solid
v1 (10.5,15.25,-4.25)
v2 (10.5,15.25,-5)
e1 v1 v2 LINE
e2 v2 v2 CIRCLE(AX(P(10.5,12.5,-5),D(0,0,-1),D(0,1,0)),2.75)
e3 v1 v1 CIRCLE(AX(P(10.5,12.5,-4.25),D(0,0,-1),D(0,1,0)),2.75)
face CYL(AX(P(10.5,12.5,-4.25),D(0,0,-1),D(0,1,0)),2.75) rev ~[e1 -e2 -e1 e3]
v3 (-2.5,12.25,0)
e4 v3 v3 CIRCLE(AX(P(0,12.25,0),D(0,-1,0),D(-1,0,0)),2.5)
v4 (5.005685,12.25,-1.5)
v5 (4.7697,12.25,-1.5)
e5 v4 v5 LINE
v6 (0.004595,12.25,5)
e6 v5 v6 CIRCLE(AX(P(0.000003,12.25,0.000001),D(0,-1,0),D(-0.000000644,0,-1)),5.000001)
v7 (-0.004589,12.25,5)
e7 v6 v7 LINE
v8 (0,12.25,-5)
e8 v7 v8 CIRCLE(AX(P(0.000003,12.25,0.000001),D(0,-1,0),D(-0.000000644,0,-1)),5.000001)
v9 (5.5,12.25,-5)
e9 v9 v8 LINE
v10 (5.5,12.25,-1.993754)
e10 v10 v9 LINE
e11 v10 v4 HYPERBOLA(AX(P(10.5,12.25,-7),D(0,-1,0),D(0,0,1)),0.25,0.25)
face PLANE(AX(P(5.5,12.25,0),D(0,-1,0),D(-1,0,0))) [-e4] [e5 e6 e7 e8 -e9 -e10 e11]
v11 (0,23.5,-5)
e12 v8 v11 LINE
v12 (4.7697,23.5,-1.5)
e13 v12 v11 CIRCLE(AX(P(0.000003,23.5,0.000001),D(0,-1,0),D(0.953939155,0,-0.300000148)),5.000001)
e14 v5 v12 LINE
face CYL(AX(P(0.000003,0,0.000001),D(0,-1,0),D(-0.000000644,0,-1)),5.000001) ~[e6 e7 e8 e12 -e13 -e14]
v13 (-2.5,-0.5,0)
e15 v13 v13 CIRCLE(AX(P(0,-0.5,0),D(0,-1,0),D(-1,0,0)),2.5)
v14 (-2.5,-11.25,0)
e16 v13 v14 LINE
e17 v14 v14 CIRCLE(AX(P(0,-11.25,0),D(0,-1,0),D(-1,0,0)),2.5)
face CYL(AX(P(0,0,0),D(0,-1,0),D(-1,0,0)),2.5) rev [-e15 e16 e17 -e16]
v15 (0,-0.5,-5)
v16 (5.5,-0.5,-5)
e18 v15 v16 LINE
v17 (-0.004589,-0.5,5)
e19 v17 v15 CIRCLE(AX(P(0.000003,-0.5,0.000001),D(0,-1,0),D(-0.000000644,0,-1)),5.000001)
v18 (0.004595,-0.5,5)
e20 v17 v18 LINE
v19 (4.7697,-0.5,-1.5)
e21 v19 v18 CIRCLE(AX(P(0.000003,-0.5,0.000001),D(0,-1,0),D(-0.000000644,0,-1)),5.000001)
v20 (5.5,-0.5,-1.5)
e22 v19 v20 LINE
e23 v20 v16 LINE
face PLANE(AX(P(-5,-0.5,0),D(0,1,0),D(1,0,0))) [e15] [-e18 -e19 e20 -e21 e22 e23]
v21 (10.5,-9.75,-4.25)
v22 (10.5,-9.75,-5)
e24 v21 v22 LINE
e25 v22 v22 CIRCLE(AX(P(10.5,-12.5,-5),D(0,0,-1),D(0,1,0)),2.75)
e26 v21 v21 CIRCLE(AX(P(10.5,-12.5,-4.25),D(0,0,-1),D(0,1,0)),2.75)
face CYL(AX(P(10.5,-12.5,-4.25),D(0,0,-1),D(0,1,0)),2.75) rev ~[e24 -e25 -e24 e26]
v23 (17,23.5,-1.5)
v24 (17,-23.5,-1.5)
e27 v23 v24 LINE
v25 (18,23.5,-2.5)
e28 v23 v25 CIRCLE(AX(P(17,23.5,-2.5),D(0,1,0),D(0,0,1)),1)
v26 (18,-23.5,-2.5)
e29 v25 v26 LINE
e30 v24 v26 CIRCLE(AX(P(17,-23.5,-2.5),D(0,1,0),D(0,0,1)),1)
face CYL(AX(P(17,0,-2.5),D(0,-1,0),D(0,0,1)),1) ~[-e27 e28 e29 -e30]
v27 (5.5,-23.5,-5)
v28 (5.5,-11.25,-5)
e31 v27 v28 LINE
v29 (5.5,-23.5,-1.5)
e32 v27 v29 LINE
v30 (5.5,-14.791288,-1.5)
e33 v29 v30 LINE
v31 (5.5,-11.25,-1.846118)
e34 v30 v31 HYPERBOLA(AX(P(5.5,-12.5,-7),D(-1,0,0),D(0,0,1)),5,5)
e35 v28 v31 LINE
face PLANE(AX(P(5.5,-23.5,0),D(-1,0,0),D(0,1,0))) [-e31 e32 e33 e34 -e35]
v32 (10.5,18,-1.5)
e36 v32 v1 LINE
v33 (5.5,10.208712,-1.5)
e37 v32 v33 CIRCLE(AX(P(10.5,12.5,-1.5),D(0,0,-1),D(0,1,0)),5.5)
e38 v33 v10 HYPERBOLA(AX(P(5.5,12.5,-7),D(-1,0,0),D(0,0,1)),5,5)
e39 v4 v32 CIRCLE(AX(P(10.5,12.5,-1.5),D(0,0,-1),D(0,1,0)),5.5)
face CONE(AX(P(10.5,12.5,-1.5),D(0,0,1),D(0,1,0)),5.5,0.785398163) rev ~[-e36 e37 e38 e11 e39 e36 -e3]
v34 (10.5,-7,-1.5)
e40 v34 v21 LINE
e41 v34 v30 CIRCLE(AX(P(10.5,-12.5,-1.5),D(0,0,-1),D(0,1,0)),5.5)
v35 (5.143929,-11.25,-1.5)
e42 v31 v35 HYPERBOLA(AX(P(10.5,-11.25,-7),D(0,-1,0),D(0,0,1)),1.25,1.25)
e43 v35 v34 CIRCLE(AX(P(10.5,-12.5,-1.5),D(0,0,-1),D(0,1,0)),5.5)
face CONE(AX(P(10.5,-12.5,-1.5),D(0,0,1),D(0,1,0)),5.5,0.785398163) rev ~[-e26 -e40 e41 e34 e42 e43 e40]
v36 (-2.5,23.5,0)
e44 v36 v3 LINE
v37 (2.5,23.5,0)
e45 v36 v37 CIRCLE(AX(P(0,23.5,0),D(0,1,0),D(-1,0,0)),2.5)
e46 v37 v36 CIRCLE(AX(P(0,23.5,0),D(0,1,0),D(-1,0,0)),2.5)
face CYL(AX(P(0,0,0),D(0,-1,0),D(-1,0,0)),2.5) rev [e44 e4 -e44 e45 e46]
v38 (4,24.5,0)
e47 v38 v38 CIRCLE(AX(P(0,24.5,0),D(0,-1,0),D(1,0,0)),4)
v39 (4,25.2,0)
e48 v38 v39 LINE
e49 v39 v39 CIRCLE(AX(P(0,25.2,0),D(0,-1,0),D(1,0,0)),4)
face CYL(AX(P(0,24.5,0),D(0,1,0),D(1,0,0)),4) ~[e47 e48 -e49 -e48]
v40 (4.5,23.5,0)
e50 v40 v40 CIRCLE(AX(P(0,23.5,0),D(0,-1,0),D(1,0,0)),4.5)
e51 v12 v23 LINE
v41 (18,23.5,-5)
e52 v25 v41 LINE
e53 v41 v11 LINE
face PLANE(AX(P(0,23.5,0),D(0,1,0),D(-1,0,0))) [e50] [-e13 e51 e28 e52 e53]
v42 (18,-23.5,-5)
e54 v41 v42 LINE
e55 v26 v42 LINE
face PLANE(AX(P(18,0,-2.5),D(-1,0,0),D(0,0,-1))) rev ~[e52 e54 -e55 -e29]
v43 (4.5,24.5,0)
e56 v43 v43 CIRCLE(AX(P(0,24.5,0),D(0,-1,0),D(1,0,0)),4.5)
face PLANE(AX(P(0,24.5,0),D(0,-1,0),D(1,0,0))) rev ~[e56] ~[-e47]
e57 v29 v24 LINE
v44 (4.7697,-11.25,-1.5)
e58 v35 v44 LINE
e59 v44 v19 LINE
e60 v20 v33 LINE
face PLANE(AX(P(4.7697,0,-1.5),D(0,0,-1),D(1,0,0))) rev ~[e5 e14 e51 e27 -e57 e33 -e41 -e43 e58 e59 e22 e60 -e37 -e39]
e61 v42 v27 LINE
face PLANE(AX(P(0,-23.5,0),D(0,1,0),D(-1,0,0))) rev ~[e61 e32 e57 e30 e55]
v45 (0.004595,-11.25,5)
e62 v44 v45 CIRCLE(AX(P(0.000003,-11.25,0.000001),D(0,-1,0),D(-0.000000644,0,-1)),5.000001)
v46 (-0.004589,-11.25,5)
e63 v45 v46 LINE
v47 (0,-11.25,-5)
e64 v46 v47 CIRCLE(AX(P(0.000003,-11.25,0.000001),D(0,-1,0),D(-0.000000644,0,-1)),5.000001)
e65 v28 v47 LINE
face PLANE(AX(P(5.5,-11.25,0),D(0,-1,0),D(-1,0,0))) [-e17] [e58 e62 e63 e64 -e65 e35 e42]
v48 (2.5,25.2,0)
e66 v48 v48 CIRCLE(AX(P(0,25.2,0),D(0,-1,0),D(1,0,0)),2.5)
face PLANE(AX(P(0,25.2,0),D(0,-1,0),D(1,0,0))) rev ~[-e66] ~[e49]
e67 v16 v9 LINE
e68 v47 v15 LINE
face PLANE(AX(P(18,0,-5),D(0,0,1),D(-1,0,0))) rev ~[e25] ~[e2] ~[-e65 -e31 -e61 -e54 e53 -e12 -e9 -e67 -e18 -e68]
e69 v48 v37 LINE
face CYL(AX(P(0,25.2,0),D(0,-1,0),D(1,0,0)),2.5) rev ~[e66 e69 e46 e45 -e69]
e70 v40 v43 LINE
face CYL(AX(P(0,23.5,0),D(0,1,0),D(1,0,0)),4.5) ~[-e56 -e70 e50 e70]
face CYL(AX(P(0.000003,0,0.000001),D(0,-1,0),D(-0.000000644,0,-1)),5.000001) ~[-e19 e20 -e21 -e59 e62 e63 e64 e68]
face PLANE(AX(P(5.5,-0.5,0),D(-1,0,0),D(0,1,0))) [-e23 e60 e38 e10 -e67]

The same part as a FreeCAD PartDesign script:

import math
import FreeCAD as App
import Part
import Sketcher

V = App.Vector
Q = App.Units.Quantity


def add_polygon(sketch, points):
    """Adds a closed chain of lines whose ends are joined by coincident constraints."""
    first, n = sketch.GeometryCount, len(points)
    for a, b in zip(points, points[1:] + points[:1]):
        sketch.addGeometry(Part.LineSegment(App.Vector(*a, 0), App.Vector(*b, 0)), False)
    for i in range(n):
        sketch.addConstraint(Sketcher.Constraint("Coincident", first + i, 2, first + (i + 1) % n, 1))

doc = App.newDocument("Part")
body = doc.addObject("PartDesign::Body", "Body")

# Sketch on XZ plane
sketch1 = body.newObject("Sketcher::SketchObject", "Sketch")
sketch1.AttachmentSupport = (doc.getObject("XZ_Plane"), [""])
sketch1.MapMode = "FlatFace"
sketch1.addGeometry(Part.LineSegment(V(18, -5, 0), V(0, -5, 0)), False)
sketch1.addGeometry(Part.ArcOfCircle(Part.Circle(V(0, 0, 0), V(0, 0, 1), 5), math.radians(-17), math.radians(270)), False)
sketch1.addGeometry(Part.LineSegment(V(4.8, -1.5, 0), V(17, -1.5, 0)), False)
sketch1.addGeometry(Part.ArcOfCircle(Part.Circle(V(17, -2.5, 0), V(0, 0, 1), 1), math.radians(0), math.radians(90)), False)
sketch1.addGeometry(Part.LineSegment(V(18, -2.5, 0), V(18, -5, 0)), False)
sketch1.addGeometry(Part.Circle(V(0, 0, 0), V(0, 0, 1), 2.5), False)
sketch1.addConstraint(Sketcher.Constraint("Tangent", 0, 2, 1, 2))
sketch1.addConstraint(Sketcher.Constraint("Coincident", 1, 1, 2, 1))
sketch1.addConstraint(Sketcher.Constraint("Tangent", 2, 2, 3, 2))
sketch1.addConstraint(Sketcher.Constraint("Tangent", 3, 1, 4, 1))
sketch1.addConstraint(Sketcher.Constraint("Coincident", 4, 2, 0, 1))
sketch1.addConstraint(Sketcher.Constraint("Horizontal", 0))
sketch1.addConstraint(Sketcher.Constraint("Horizontal", 2))
sketch1.addConstraint(Sketcher.Constraint("Vertical", 4))
sketch1.addConstraint(Sketcher.Constraint("Coincident", 1, 3, -1, 1))
sketch1.addConstraint(Sketcher.Constraint("Coincident", 5, 3, -1, 1))
sketch1.addConstraint(Sketcher.Constraint("Diameter", 5, 5.0))
sketch1.addConstraint(Sketcher.Constraint("Radius", 1, 5.0))
sketch1.addConstraint(Sketcher.Constraint("Radius", 3, 1.0))
sketch1.addConstraint(Sketcher.Constraint("DistanceX", 0, 2, 0, 1, 18.0))
sketch1.addConstraint(Sketcher.Constraint("DistanceY", 4, 2, 4, 1, 2.5))
pad1 = body.newObject("PartDesign::Pad", "Pad")
pad1.Profile = sketch1
pad1.Length = 47
pad1.Midplane = True

# Sketch on XY plane
sketch2 = body.newObject("Sketcher::SketchObject", "Sketch001")
sketch2.AttachmentSupport = (doc.getObject("XY_Plane"), [""])
sketch2.MapMode = "FlatFace"
add_polygon(sketch2, [(-10, 24), (-10, -24), (6, -24), (6, -11), (-5, -11), (-5, 0), (6, 0), (6, 12), (-5, 12), (-5, 24)])  # lines 0-9
sketch2.addConstraint(Sketcher.Constraint("Vertical", 0))
sketch2.addConstraint(Sketcher.Constraint("Horizontal", 1))
sketch2.addConstraint(Sketcher.Constraint("Vertical", 2))
sketch2.addConstraint(Sketcher.Constraint("Horizontal", 3))
sketch2.addConstraint(Sketcher.Constraint("Vertical", 4))
sketch2.addConstraint(Sketcher.Constraint("Horizontal", 5))
sketch2.addConstraint(Sketcher.Constraint("Vertical", 6))
sketch2.addConstraint(Sketcher.Constraint("Horizontal", 7))
sketch2.addConstraint(Sketcher.Constraint("Vertical", 8))
sketch2.addConstraint(Sketcher.Constraint("Horizontal", 9))
sketch2.addConstraint(Sketcher.Constraint("Vertical", 2, 2, 5, 2))
sketch2.addConstraint(Sketcher.Constraint("Vertical", 4, 2, 7, 2))
sketch2.addConstraint(Sketcher.Constraint("DistanceX", 9, 2, 9, 1, 5.0))
sketch2.addConstraint(Sketcher.Constraint("DistanceY", 0, 2, 0, 1, 47.0))
sketch2.addConstraint(Sketcher.Constraint("DistanceX", 1, 1, 1, 2, 15.5))
sketch2.addConstraint(Sketcher.Constraint("DistanceX", 0, 2, -1, 1, 10.0))
sketch2.addConstraint(Sketcher.Constraint("DistanceY", 0, 2, 4, 2, 23.0))
sketch2.addConstraint(Sketcher.Constraint("DistanceY", 2, 1, 2, 2, 12.25))
sketch2.addConstraint(Sketcher.Constraint("DistanceY", 6, 1, 6, 2, 12.75))
sketch2.addConstraint(Sketcher.Constraint("DistanceY", 0, 2, -1, 1, 23.5))
pocket1 = body.newObject("PartDesign::Pocket", "Pocket")
pocket1.Profile = sketch2
pocket1.Length = 10
pocket1.Midplane = True

# Sketch on YZ plane
sketch3 = body.newObject("Sketcher::SketchObject", "Sketch002")
sketch3.AttachmentSupport = (doc.getObject("YZ_Plane"), [""])
sketch3.MapMode = "FlatFace"
sketch3.AttachmentOffset = App.Placement(V(0, 0, 10.5), App.Rotation())
add_polygon(sketch3, [(12.5, -1.5), (12.5, -5), (15.2, -5), (15.2, -4.2), (18, -1.5)])  # lines 0-4
sketch3.addGeometry(Part.LineSegment(V(12.5, -1.5, 0), V(12.5, -5, 0)), True)  # axis
sketch3.addConstraint(Sketcher.Constraint("Vertical", 0))
sketch3.addConstraint(Sketcher.Constraint("Horizontal", 1))
sketch3.addConstraint(Sketcher.Constraint("Vertical", 2))
sketch3.addConstraint(Sketcher.Constraint("Horizontal", 4))
sketch3.addConstraint(Sketcher.Constraint("Vertical", 5))
sketch3.addConstraint(Sketcher.Constraint("Coincident", 5, 1, 4, 2))
sketch3.addConstraint(Sketcher.Constraint("Horizontal", 1, 2, 5, 2))
sketch3.addConstraint(Sketcher.Constraint("Angle", 3, Q("45 deg")))
sketch3.addConstraint(Sketcher.Constraint("DistanceX", 4, 2, 4, 1, 5.5))
sketch3.addConstraint(Sketcher.Constraint("DistanceY", 0, 2, 0, 1, 3.5))
sketch3.addConstraint(Sketcher.Constraint("DistanceY", 0, 2, -1, 1, 5.0))
sketch3.addConstraint(Sketcher.Constraint("DistanceX", -1, 1, 3, 2, 18.0))
sketch3.addConstraint(Sketcher.Constraint("DistanceX", 1, 1, 1, 2, 2.75))
groove = body.newObject("PartDesign::Groove", "Groove")
groove.Profile = sketch3
groove.ReferenceAxis = (sketch3, ["Axis0"])
groove.Angle = 360

# Sketch on YZ plane
sketch4 = body.newObject("Sketcher::SketchObject", "Sketch003")
sketch4.AttachmentSupport = (doc.getObject("YZ_Plane"), [""])
sketch4.MapMode = "FlatFace"
sketch4.AttachmentOffset = App.Placement(V(0, 0, 10.5), App.Rotation())
add_polygon(sketch4, [(-12.5, -1.5), (-12.5, -5), (-9.8, -5), (-9.8, -4.2), (-7, -1.5)])  # lines 0-4
sketch4.addGeometry(Part.LineSegment(V(-12.5, -1.5, 0), V(-12.5, -5, 0)), True)  # axis
sketch4.addConstraint(Sketcher.Constraint("Vertical", 0))
sketch4.addConstraint(Sketcher.Constraint("Horizontal", 1))
sketch4.addConstraint(Sketcher.Constraint("Vertical", 2))
sketch4.addConstraint(Sketcher.Constraint("Horizontal", 4))
sketch4.addConstraint(Sketcher.Constraint("Vertical", 5))
sketch4.addConstraint(Sketcher.Constraint("Coincident", 5, 1, 4, 2))
sketch4.addConstraint(Sketcher.Constraint("Horizontal", 1, 2, 5, 2))
sketch4.addConstraint(Sketcher.Constraint("Angle", 3, Q("45 deg")))
sketch4.addConstraint(Sketcher.Constraint("DistanceX", 4, 2, 4, 1, 5.5))
sketch4.addConstraint(Sketcher.Constraint("DistanceY", 0, 2, 0, 1, 3.5))
sketch4.addConstraint(Sketcher.Constraint("DistanceY", 0, 2, -1, 1, 5.0))
sketch4.addConstraint(Sketcher.Constraint("DistanceX", 3, 2, -1, 1, 7.0))
sketch4.addConstraint(Sketcher.Constraint("DistanceX", 1, 1, 1, 2, 2.75))
groove2 = body.newObject("PartDesign::Groove", "Groove001")
groove2.Profile = sketch4
groove2.ReferenceAxis = (sketch4, ["Axis0"])
groove2.Angle = 360

# Sketch on XY plane
sketch5 = body.newObject("Sketcher::SketchObject", "Sketch004")
sketch5.AttachmentSupport = (doc.getObject("XY_Plane"), [""])
sketch5.MapMode = "FlatFace"
add_polygon(sketch5, [(2.5, 25.2), (2.5, 23.5), (4.5, 23.5), (4.5, 24.5), (4, 24.5), (4, 25.2)])  # lines 0-5
sketch5.addConstraint(Sketcher.Constraint("Vertical", 0))
sketch5.addConstraint(Sketcher.Constraint("Horizontal", 1))
sketch5.addConstraint(Sketcher.Constraint("Vertical", 2))
sketch5.addConstraint(Sketcher.Constraint("Horizontal", 3))
sketch5.addConstraint(Sketcher.Constraint("Vertical", 4))
sketch5.addConstraint(Sketcher.Constraint("Horizontal", 5))
sketch5.addConstraint(Sketcher.Constraint("DistanceX", 1, 1, 1, 2, 2.0))
sketch5.addConstraint(Sketcher.Constraint("DistanceY", 2, 1, 2, 2, 1.0))
sketch5.addConstraint(Sketcher.Constraint("DistanceX", 3, 2, 3, 1, 0.5))
sketch5.addConstraint(Sketcher.Constraint("DistanceY", 0, 2, 0, 1, 1.7))
sketch5.addConstraint(Sketcher.Constraint("DistanceX", -1, 1, 3, 2, 4.0))
sketch5.addConstraint(Sketcher.Constraint("DistanceY", -1, 1, 0, 2, 23.5))
revolution = body.newObject("PartDesign::Revolution", "Revolution")
revolution.Profile = sketch5
revolution.ReferenceAxis = (sketch5, ["V_Axis"])
revolution.Angle = 360

doc.recompute()
